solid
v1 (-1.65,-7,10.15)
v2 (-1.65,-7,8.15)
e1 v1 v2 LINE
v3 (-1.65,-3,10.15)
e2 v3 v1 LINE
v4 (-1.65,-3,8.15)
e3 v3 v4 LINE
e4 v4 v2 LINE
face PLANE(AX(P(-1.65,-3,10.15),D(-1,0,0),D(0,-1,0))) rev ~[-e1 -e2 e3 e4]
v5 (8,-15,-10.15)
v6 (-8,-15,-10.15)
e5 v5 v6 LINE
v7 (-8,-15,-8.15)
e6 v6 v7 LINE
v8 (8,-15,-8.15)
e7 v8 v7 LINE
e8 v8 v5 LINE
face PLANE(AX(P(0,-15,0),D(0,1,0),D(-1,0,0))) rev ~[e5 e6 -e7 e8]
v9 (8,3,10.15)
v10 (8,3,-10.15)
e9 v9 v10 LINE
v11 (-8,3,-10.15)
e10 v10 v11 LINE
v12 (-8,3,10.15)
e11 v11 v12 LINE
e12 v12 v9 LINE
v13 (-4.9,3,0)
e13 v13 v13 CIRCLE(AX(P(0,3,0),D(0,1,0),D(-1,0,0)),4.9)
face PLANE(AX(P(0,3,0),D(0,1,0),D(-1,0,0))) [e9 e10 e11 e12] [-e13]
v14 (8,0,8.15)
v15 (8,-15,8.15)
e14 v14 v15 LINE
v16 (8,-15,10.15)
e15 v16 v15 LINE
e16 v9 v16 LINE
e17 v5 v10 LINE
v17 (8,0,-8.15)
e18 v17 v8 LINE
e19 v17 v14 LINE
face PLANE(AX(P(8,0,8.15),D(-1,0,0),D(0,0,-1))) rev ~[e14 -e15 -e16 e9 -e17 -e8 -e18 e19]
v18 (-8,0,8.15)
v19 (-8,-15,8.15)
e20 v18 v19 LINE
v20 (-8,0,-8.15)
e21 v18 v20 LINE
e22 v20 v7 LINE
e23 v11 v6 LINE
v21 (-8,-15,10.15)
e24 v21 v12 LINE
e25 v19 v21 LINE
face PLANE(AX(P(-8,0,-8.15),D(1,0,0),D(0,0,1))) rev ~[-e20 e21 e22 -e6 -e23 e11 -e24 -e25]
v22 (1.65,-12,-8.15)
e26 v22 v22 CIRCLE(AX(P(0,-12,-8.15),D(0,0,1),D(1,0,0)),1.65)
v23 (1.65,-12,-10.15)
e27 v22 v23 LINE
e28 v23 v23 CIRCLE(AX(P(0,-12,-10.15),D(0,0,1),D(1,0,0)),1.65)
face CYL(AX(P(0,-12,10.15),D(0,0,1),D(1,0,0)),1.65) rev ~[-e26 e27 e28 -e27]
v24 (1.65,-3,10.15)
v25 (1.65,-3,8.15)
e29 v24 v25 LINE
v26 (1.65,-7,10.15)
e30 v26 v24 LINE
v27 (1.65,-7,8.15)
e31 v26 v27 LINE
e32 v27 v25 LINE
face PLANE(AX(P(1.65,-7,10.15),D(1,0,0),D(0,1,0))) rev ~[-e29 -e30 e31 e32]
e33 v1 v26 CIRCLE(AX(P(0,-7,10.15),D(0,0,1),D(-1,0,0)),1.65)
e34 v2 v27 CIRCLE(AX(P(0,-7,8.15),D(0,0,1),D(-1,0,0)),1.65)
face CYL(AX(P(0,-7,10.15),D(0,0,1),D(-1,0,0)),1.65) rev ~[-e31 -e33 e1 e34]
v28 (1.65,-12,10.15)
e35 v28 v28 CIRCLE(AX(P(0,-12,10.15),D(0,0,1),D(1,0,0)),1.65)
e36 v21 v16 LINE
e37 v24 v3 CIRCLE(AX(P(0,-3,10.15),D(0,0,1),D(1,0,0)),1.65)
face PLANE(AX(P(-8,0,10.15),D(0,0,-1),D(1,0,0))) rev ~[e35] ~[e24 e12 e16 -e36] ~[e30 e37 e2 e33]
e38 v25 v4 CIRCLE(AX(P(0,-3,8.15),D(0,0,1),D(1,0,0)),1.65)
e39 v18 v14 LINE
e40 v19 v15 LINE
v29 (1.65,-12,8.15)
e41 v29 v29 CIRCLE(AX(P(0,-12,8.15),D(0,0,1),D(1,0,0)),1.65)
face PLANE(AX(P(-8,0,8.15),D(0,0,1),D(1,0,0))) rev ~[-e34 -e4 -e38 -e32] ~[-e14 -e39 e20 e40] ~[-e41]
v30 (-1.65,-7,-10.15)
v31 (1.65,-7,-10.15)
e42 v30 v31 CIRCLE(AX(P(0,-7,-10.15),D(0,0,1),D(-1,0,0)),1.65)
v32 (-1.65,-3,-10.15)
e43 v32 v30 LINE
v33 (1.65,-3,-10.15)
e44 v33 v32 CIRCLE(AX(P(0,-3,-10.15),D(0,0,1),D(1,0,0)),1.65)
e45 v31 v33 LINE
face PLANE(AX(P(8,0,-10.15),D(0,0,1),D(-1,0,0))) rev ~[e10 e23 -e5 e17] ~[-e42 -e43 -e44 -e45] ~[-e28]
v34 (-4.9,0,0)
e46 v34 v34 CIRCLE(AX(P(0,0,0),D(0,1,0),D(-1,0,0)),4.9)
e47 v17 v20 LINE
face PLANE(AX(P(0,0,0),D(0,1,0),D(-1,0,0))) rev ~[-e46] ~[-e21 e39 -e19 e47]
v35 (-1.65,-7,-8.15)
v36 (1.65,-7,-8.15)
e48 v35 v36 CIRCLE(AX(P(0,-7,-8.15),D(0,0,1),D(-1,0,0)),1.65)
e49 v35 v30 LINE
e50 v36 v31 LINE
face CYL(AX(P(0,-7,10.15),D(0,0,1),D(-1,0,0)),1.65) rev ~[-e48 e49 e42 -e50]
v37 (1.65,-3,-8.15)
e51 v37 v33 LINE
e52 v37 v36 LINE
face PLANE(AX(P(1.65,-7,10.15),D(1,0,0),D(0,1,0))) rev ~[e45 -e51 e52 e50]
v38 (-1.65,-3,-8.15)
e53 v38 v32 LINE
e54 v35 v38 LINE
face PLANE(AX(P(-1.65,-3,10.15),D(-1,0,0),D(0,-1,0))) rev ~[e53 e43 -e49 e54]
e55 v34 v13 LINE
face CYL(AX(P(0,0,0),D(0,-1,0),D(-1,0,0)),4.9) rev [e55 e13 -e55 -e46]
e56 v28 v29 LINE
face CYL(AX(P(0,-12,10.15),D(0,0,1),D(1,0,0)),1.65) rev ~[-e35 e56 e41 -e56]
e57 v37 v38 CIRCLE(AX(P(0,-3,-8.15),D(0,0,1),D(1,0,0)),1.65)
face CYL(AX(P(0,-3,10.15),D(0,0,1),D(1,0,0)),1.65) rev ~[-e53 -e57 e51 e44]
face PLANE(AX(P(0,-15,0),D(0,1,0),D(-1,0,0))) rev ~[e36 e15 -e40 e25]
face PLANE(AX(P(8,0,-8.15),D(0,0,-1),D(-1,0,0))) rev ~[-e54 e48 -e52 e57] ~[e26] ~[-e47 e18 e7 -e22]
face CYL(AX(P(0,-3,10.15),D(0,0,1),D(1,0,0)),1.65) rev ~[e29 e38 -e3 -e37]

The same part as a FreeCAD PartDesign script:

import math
import FreeCAD as App
import Part
import Sketcher
from FreeCAD import Vector
Q = App.Units.Quantity


def add_polygon(sketch, points):
    """Adds a closed chain of lines whose ends are joined by coincident constraints."""
    first, n = sketch.GeometryCount, len(points)
    for a, b in zip(points, points[1:] + points[:1]):
        sketch.addGeometry(Part.LineSegment(App.Vector(*a, 0), App.Vector(*b, 0)), False)
    for i in range(n):
        sketch.addConstraint(Sketcher.Constraint("Coincident", first + i, 2, first + (i + 1) % n, 1))

doc = App.newDocument("Part")
body = doc.addObject("PartDesign::Body", "Body")

# Sketch on XZ plane
sketch1 = body.newObject("Sketcher::SketchObject", "Sketch")
sketch1.AttachmentSupport = (doc.getObject("XZ_Plane"), [""])
sketch1.MapMode = "FlatFace"
add_polygon(sketch1, [(-8, 10.2), (8, 10.2), (8, -10.2), (-8, -10.2)])  # lines 0-3
sketch1.addGeometry(Part.Circle(Vector(0, 0, 0), Vector(0, 0, 1), 4.9), False)  # 4
sketch1.addConstraint(Sketcher.Constraint("Horizontal", 0))
sketch1.addConstraint(Sketcher.Constraint("Vertical", 1))
sketch1.addConstraint(Sketcher.Constraint("Horizontal", 2))
sketch1.addConstraint(Sketcher.Constraint("Vertical", 3))
sketch1.addConstraint(Sketcher.Constraint("Coincident", 4, 3, -1, 1))
sketch1.addConstraint(Sketcher.Constraint("Symmetric", 0, 2, 2, 2, -1, 1))
sketch1.addConstraint(Sketcher.Constraint("Diameter", 4, Q("9.8 mm")))
sketch1.addConstraint(Sketcher.Constraint("DistanceX", 0, 1, 0, 2, Q("16 mm")))
sketch1.addConstraint(Sketcher.Constraint("DistanceY", 1, 2, 1, 1, Q("20.3 mm")))
pad1 = body.newObject("PartDesign::Pad", "Pad")
pad1.Profile = sketch1
pad1.Length = 3
pad1.Reversed = True

# Sketch on XZ plane
sketch2 = body.newObject("Sketcher::SketchObject", "Sketch001")
sketch2.AttachmentSupport = (doc.getObject("XZ_Plane"), [""])
sketch2.MapMode = "FlatFace"
add_polygon(sketch2, [(8, 8.2), (-8, 8.2), (-8, 10.2), (8, 10.2)])  # lines 0-3
add_polygon(sketch2, [(-8, -10.2), (-8, -8.2), (8, -8.2), (8, -10.2)])  # lines 4-7
sketch2.addConstraint(Sketcher.Constraint("Horizontal", 0))
sketch2.addConstraint(Sketcher.Constraint("Vertical", 1))
sketch2.addConstraint(Sketcher.Constraint("Horizontal", 2))
sketch2.addConstraint(Sketcher.Constraint("Vertical", 3))
sketch2.addConstraint(Sketcher.Constraint("Vertical", 4))
sketch2.addConstraint(Sketcher.Constraint("Horizontal", 5))
sketch2.addConstraint(Sketcher.Constraint("Vertical", 6))
sketch2.addConstraint(Sketcher.Constraint("Horizontal", 7))
sketch2.addConstraint(Sketcher.Constraint("Symmetric", 3, 2, 4, 2, -1, 1))
sketch2.addConstraint(Sketcher.Constraint("Symmetric", 1, 2, 6, 2, -1, 1))
sketch2.addConstraint(Sketcher.Constraint("Vertical", 1, 2, 4, 2))
sketch2.addConstraint(Sketcher.Constraint("DistanceX", 0, 2, 0, 1, Q("16 mm")))
sketch2.addConstraint(Sketcher.Constraint("DistanceY", 1, 1, 1, 2, Q("2 mm")))
sketch2.addConstraint(Sketcher.Constraint("DistanceY", 4, 2, 0, 2, Q("16.3 mm")))
pad2 = body.newObject("PartDesign::Pad", "Pad001")
pad2.Profile = sketch2
pad2.Length = 15

# Sketch on XY plane
sketch3 = body.newObject("Sketcher::SketchObject", "Sketch002")
sketch3.AttachmentSupport = (doc.getObject("XY_Plane"), [""])
sketch3.MapMode = "FlatFace"
sketch3.AttachmentOffset = App.Placement(Vector(0, 0, 10.15), App.Rotation())
sketch3.addGeometry(Part.Circle(Vector(0, -12, 0), Vector(0, 0, 1), 1.6), False)
sketch3.addConstraint(Sketcher.Constraint("PointOnObject", 0, 3, -2))
sketch3.addConstraint(Sketcher.Constraint("Diameter", 0, Q("3.3 mm")))
sketch3.addConstraint(Sketcher.Constraint("DistanceY", 0, 3, -1, 1, Q("12 mm")))
pocket1 = body.newObject("PartDesign::Pocket", "Pocket")
pocket1.Profile = sketch3
pocket1.Type = "ThroughAll"

# Sketch on XY plane
sketch4 = body.newObject("Sketcher::SketchObject", "Sketch003")
sketch4.AttachmentSupport = (doc.getObject("XY_Plane"), [""])
sketch4.MapMode = "FlatFace"
sketch4.AttachmentOffset = App.Placement(Vector(0, 0, 10.15), App.Rotation())
sketch4.addGeometry(Part.ArcOfCircle(Part.Circle(Vector(0, -7, 0), Vector(0, 0, 1), 1.7), math.radians(180), math.radians(360)), False)
sketch4.addGeometry(Part.LineSegment(Vector(1.6, -7, 0), Vector(1.6, -3, 0)), False)
sketch4.addGeometry(Part.ArcOfCircle(Part.Circle(Vector(0, -3, 0), Vector(0, 0, 1), 1.7), math.radians(0), math.radians(180)), False)
sketch4.addGeometry(Part.LineSegment(Vector(-1.6, -3, 0), Vector(-1.6, -7, 0)), False)
sketch4.addConstraint(Sketcher.Constraint("Tangent", 0, 2, 1, 1))
sketch4.addConstraint(Sketcher.Constraint("Tangent", 1, 2, 2, 1))
sketch4.addConstraint(Sketcher.Constraint("Tangent", 2, 2, 3, 1))
sketch4.addConstraint(Sketcher.Constraint("Tangent", 3, 2, 0, 1))
sketch4.addConstraint(Sketcher.Constraint("Vertical", 1))
sketch4.addConstraint(Sketcher.Constraint("Vertical", 3))
sketch4.addConstraint(Sketcher.Constraint("PointOnObject", 0, 3, -2))
sketch4.addConstraint(Sketcher.Constraint("DistanceY", 1, 1, 1, 2, Q("4 mm")))
sketch4.addConstraint(Sketcher.Constraint("Radius", 0, Q("1.65 mm")))
sketch4.addConstraint(Sketcher.Constraint("DistanceY", 0, 3, -1, 1, Q("7 mm")))
pocket2 = body.newObject("PartDesign::Pocket", "Pocket001")
pocket2.Profile = sketch4
pocket2.Type = "ThroughAll"

doc.recompute()
